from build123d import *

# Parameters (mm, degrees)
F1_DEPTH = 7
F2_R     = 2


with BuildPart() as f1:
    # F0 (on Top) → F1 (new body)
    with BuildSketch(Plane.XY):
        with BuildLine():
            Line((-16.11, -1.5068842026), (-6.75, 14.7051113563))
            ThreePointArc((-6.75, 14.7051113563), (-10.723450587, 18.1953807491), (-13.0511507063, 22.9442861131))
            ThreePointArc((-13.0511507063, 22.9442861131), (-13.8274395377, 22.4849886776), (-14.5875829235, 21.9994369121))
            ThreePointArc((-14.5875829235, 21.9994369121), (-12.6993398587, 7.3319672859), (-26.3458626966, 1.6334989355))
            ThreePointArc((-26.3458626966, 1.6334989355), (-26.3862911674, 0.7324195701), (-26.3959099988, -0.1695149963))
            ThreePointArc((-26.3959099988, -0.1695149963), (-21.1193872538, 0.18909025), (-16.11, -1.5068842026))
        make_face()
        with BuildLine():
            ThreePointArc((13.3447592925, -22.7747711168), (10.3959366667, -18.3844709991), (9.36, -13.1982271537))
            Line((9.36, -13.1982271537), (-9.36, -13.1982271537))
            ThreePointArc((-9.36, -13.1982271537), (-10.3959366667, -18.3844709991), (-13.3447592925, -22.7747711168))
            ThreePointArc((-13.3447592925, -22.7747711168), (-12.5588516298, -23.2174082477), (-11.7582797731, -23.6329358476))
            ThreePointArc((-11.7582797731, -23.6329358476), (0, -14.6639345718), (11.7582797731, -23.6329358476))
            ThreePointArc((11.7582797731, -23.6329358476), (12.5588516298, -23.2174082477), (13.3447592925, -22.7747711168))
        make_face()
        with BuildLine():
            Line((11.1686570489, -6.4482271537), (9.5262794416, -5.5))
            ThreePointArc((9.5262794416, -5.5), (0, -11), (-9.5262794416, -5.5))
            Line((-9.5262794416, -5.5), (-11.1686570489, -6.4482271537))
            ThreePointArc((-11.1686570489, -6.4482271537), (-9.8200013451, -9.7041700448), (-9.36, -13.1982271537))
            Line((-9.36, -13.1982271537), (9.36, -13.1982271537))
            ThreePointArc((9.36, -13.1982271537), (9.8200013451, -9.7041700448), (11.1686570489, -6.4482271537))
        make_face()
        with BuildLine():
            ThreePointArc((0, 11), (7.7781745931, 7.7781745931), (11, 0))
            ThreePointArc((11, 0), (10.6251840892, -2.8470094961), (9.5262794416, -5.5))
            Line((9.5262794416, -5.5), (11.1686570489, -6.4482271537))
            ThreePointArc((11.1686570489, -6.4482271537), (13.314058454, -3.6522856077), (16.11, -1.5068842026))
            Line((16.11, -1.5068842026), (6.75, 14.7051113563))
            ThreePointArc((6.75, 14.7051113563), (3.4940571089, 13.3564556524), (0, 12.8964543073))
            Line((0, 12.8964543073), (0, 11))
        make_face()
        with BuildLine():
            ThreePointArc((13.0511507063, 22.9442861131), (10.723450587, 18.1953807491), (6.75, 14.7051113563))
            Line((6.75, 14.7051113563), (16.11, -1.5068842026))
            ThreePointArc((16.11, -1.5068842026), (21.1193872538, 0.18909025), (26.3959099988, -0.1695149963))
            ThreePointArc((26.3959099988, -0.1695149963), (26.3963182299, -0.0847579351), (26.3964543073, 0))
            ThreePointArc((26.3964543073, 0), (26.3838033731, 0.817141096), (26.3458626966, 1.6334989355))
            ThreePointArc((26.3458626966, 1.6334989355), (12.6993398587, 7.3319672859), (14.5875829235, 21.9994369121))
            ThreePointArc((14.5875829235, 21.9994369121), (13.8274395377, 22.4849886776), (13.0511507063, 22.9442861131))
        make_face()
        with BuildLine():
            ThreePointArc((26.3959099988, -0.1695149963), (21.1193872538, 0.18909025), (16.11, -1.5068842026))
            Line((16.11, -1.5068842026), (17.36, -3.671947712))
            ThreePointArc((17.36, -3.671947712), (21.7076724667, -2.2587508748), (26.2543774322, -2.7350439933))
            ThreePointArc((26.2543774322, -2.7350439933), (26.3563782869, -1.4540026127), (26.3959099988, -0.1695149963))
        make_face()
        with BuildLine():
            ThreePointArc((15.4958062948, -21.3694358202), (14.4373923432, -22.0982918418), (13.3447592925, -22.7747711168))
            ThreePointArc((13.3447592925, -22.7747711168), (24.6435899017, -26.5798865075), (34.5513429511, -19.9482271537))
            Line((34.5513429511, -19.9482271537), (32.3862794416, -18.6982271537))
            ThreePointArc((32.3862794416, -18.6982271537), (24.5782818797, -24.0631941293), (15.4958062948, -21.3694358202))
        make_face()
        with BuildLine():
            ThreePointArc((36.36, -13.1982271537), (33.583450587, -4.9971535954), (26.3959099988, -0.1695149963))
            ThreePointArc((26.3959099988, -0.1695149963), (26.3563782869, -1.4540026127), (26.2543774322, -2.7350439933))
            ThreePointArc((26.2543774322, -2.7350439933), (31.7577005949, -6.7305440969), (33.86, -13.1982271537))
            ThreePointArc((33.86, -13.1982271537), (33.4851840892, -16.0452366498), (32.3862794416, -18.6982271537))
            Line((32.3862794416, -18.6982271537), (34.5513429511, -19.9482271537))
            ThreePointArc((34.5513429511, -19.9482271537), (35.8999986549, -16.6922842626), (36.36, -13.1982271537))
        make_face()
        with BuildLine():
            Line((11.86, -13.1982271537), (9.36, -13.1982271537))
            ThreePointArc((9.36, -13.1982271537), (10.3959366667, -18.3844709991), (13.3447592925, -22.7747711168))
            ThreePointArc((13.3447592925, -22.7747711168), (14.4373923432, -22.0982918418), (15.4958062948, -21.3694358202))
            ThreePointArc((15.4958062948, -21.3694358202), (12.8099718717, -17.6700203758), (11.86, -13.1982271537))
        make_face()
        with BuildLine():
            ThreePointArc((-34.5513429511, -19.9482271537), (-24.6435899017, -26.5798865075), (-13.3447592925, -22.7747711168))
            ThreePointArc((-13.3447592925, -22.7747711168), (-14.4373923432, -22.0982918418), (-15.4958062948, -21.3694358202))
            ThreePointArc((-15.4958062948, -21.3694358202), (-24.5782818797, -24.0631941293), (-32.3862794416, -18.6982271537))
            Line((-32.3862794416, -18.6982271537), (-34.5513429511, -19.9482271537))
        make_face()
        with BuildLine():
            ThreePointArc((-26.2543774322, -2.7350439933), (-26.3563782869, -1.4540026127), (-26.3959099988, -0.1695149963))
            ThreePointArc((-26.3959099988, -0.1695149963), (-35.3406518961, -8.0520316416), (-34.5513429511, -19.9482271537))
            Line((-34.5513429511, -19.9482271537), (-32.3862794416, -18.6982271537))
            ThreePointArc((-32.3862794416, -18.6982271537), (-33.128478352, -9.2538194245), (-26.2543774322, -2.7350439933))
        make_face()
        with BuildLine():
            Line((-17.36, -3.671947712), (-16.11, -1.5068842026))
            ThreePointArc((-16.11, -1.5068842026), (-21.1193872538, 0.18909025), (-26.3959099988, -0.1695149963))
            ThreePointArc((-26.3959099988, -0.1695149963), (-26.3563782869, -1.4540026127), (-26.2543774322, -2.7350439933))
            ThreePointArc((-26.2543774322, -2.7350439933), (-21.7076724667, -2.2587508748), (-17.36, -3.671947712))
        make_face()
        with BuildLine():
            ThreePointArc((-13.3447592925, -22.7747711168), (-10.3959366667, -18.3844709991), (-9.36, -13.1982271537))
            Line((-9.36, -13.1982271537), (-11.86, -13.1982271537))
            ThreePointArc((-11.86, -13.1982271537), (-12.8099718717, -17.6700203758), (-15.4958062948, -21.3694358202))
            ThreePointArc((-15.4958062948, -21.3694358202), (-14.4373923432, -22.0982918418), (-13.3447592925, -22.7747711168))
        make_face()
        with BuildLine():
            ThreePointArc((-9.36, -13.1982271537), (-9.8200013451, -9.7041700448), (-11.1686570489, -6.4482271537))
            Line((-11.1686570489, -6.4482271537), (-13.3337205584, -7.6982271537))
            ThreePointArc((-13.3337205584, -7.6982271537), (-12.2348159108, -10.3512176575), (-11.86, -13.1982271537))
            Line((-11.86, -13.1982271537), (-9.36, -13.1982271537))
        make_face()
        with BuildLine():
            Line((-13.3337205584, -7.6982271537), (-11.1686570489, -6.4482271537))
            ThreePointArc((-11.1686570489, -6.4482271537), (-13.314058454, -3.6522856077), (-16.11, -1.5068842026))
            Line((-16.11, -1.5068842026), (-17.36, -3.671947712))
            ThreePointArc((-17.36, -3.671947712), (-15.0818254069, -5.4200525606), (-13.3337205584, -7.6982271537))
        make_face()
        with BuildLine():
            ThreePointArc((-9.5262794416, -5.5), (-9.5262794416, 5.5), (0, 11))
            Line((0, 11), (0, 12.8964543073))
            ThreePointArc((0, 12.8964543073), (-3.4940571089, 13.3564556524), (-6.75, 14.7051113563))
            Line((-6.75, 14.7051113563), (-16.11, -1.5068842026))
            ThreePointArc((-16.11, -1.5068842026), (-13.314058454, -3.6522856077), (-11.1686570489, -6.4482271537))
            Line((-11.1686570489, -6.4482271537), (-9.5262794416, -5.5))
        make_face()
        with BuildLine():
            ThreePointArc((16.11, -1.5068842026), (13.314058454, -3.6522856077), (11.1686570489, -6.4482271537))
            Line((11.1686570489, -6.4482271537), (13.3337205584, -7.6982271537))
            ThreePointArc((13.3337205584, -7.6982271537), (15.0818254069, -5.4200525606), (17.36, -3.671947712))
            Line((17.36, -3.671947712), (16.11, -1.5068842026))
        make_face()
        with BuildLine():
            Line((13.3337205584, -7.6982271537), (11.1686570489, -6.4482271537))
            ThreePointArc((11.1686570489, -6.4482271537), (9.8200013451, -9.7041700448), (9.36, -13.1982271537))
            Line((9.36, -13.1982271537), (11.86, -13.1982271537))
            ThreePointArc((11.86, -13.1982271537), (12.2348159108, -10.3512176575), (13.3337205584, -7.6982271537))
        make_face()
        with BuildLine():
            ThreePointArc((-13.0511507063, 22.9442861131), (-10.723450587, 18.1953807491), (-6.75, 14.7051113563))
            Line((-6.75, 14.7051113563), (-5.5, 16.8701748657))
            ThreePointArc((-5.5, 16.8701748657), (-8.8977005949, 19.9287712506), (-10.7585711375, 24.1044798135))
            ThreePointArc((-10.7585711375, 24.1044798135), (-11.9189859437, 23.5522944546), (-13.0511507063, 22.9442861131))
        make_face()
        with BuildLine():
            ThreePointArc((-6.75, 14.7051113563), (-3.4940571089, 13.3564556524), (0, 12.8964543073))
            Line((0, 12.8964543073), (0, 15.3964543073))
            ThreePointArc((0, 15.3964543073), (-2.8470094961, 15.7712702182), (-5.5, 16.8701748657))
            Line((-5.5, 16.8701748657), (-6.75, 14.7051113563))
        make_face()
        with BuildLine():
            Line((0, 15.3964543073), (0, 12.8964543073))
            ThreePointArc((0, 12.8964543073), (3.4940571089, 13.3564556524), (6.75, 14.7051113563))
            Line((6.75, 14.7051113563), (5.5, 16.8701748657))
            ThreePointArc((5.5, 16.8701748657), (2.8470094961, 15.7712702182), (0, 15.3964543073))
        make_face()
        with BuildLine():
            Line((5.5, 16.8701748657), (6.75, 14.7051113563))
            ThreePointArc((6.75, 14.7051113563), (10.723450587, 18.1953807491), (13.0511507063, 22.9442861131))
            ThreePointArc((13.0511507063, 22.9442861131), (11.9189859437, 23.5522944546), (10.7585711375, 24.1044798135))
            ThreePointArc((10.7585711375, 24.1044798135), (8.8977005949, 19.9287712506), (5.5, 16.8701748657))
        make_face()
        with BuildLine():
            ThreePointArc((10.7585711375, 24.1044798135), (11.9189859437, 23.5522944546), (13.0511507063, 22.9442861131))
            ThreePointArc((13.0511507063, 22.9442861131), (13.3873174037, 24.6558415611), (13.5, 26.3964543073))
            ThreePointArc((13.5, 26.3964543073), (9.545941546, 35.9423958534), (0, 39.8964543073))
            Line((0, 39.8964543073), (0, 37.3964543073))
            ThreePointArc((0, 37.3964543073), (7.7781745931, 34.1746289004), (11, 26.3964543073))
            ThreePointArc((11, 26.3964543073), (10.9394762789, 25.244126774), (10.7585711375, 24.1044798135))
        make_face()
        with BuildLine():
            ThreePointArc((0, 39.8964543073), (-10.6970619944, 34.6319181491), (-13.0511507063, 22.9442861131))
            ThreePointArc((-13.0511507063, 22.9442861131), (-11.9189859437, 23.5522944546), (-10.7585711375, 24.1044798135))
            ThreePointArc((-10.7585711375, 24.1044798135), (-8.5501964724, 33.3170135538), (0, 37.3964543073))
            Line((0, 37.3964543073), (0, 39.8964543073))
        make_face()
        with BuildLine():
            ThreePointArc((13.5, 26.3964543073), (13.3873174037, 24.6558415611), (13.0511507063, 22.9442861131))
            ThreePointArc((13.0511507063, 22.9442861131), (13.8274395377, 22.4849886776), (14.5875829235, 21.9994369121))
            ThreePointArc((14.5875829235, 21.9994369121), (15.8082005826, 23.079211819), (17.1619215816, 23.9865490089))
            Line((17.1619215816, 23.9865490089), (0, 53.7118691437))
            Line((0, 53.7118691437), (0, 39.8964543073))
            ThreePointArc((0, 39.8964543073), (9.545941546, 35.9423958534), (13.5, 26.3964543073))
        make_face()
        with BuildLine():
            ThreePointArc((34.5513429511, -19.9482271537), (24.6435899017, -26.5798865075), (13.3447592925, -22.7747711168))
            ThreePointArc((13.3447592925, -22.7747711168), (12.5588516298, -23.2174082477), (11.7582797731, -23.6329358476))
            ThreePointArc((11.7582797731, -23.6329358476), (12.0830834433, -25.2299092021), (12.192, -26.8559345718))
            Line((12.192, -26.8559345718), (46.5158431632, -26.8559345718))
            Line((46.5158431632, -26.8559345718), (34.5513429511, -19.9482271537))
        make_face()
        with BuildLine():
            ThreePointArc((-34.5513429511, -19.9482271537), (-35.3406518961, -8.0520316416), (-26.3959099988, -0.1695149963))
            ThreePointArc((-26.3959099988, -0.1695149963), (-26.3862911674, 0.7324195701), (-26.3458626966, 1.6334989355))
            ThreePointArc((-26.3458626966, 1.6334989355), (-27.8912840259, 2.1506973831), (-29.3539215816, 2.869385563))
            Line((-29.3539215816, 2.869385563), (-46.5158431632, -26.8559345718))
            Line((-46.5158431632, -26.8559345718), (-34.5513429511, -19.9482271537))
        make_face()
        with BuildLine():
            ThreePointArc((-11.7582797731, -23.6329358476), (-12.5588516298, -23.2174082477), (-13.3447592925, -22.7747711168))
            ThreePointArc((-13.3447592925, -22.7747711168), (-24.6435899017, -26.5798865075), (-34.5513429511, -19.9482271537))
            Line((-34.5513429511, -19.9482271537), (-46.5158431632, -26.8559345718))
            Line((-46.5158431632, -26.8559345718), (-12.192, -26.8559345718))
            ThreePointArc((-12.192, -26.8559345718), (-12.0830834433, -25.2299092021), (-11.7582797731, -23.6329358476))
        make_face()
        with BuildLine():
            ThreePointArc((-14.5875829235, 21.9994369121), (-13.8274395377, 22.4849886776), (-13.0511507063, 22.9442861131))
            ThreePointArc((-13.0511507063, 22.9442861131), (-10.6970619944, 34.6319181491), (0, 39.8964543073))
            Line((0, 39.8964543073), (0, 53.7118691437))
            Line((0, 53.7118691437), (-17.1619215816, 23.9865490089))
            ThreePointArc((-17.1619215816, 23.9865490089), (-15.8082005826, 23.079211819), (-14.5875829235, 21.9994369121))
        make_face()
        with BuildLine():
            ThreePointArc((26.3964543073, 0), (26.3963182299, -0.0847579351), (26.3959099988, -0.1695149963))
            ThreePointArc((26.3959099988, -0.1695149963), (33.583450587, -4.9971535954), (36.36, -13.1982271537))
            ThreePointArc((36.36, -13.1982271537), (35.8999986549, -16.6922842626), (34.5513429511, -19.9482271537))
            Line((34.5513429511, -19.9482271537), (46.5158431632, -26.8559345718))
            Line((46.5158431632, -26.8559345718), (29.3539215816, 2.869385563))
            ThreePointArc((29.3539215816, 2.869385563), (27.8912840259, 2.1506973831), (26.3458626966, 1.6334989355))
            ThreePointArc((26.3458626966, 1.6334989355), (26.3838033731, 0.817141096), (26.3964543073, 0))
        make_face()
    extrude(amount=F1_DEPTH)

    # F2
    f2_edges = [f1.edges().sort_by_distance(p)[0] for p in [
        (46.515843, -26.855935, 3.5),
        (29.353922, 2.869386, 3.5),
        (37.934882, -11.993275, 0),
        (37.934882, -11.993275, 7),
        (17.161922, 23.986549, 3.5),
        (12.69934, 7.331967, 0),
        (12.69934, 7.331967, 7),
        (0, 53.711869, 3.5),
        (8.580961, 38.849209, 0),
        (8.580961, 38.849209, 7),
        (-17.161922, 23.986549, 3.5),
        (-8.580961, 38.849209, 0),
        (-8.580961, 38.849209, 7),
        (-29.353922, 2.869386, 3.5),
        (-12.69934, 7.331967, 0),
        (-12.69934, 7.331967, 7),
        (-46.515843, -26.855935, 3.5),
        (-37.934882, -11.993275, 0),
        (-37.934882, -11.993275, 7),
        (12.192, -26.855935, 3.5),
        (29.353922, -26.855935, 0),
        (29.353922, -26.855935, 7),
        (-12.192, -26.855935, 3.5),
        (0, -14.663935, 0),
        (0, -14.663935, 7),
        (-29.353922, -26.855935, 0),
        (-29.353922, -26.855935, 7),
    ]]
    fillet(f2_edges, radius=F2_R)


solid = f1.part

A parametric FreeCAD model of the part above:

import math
import FreeCAD as App
import Part
import Sketcher
Q = App.Units.Quantity


def edges_at(feature, points):
    """Names of the edges that pass closest to the given points."""
    edges = feature.Shape.Edges
    near = lambda p: min(range(len(edges)), key=lambda i: edges[i].distToShape(Part.Vertex(*p))[0])
    return sorted({f"Edge{near(p) + 1}" for p in points})

doc = App.newDocument("Part")
body = doc.addObject("PartDesign::Body", "Body")

sketch1 = doc.addObject("Sketcher::SketchObject", "Sketch")
body.addObject(sketch1)
sketch1.AttachmentSupport = (doc.XY_Plane, [""])
sketch1.MapMode = "FlatFace"
sketch1.addGeometry(Part.ArcOfCircle(Part.Circle(App.Vector(-23.257922, 13.427967, 0), App.Vector(0, 0, 1), 12.192), math.radians(-104.671455), math.radians(44.671455)), False)
sketch1.addGeometry(Part.ArcOfCircle(Part.Circle(App.Vector(-23.257922, 13.427967, 0), App.Vector(0, 0, 1), 12.192), math.radians(-120), math.radians(-104.671455)), False)
sketch1.addGeometry(Part.LineSegment(App.Vector(-29.353922, 2.869386, 0), App.Vector(-46.515843, -26.855935, 0)), False)
sketch1.addGeometry(Part.LineSegment(App.Vector(-46.515843, -26.855935, 0), App.Vector(-12.192, -26.855935, 0)), False)
sketch1.addGeometry(Part.ArcOfCircle(Part.Circle(App.Vector(0, -26.855935, 0), App.Vector(0, 0, 1), 12.192), math.radians(164.671455), math.radians(180)), False)
sketch1.addGeometry(Part.ArcOfCircle(Part.Circle(App.Vector(0, -26.855935, 0), App.Vector(0, 0, 1), 12.192), math.radians(15.328545), math.radians(164.671455)), False)
sketch1.addGeometry(Part.ArcOfCircle(Part.Circle(App.Vector(0, -26.855935, 0), App.Vector(0, 0, 1), 12.192), math.radians(0), math.radians(15.328545)), False)
sketch1.addGeometry(Part.LineSegment(App.Vector(12.192, -26.855935, 0), App.Vector(46.515843, -26.855935, 0)), False)
sketch1.addGeometry(Part.LineSegment(App.Vector(46.515843, -26.855935, 0), App.Vector(29.353922, 2.869386, 0)), False)
sketch1.addGeometry(Part.ArcOfCircle(Part.Circle(App.Vector(23.257922, 13.427967, 0), App.Vector(0, 0, 1), 12.192), math.radians(-75.328545), math.radians(-60)), False)
sketch1.addGeometry(Part.ArcOfCircle(Part.Circle(App.Vector(23.257922, 13.427967, 0), App.Vector(0, 0, 1), 12.192), math.radians(135.328545), math.radians(284.671455)), False)
sketch1.addGeometry(Part.ArcOfCircle(Part.Circle(App.Vector(23.257922, 13.427967, 0), App.Vector(0, 0, 1), 12.192), math.radians(120), math.radians(135.328545)), False)
sketch1.addGeometry(Part.LineSegment(App.Vector(17.161922, 23.986549, 0), App.Vector(0, 53.711869, 0)), False)
sketch1.addGeometry(Part.LineSegment(App.Vector(0, 53.711869, 0), App.Vector(-17.161922, 23.986549, 0)), False)
sketch1.addGeometry(Part.ArcOfCircle(Part.Circle(App.Vector(-23.257922, 13.427967, 0), App.Vector(0, 0, 1), 12.192), math.radians(44.671455), math.radians(60)), False)
sketch1.addGeometry(Part.ArcOfCircle(Part.Circle(App.Vector(0, 26.396454, 0), App.Vector(0, 0, 1), 11), math.radians(0), math.radians(90)), False)
sketch1.addGeometry(Part.ArcOfCircle(Part.Circle(App.Vector(0, 26.396454, 0), App.Vector(0, 0, 1), 11), math.radians(-12.026339), math.radians(0)), False)
sketch1.addGeometry(Part.ArcOfCircle(Part.Circle(App.Vector(0, 26.396454, 0), App.Vector(0, 0, 1), 11), math.radians(-60), math.radians(-12.026339)), False)
sketch1.addGeometry(Part.ArcOfCircle(Part.Circle(App.Vector(0, 26.396454, 0), App.Vector(0, 0, 1), 11), math.radians(-90), math.radians(-60)), False)
sketch1.addGeometry(Part.ArcOfCircle(Part.Circle(App.Vector(0, 26.396454, 0), App.Vector(0, 0, 1), 11), math.radians(-120), math.radians(-90)), False)
sketch1.addGeometry(Part.ArcOfCircle(Part.Circle(App.Vector(0, 26.396454, 0), App.Vector(0, 0, 1), 11), math.radians(-167.973661), math.radians(-120)), False)
sketch1.addGeometry(Part.ArcOfCircle(Part.Circle(App.Vector(0, 26.396454, 0), App.Vector(0, 0, 1), 11), math.radians(90), math.radians(192.026339)), False)
sketch1.addGeometry(Part.ArcOfCircle(Part.Circle(App.Vector(0, 0, 0), App.Vector(0, 0, 1), 11), math.radians(0), math.radians(90)), False)
sketch1.addGeometry(Part.ArcOfCircle(Part.Circle(App.Vector(0, 0, 0), App.Vector(0, 0, 1), 11), math.radians(-30), math.radians(0)), False)
sketch1.addGeometry(Part.ArcOfCircle(Part.Circle(App.Vector(0, 0, 0), App.Vector(0, 0, 1), 11), math.radians(-150), math.radians(-30)), False)
sketch1.addGeometry(Part.ArcOfCircle(Part.Circle(App.Vector(0, 0, 0), App.Vector(0, 0, 1), 11), math.radians(90), math.radians(210)), False)
sketch1.addGeometry(Part.ArcOfCircle(Part.Circle(App.Vector(-22.86, -13.198227, 0), App.Vector(0, 0, 1), 11), math.radians(0), math.radians(30)), False)
sketch1.addGeometry(Part.ArcOfCircle(Part.Circle(App.Vector(-22.86, -13.198227, 0), App.Vector(0, 0, 1), 11), math.radians(-47.973661), math.radians(0)), False)
sketch1.addGeometry(Part.ArcOfCircle(Part.Circle(App.Vector(-22.86, -13.198227, 0), App.Vector(0, 0, 1), 11), math.radians(-150), math.radians(-47.973661)), False)
sketch1.addGeometry(Part.ArcOfCircle(Part.Circle(App.Vector(-22.86, -13.198227, 0), App.Vector(0, 0, 1), 11), math.radians(107.973661), math.radians(210)), False)
sketch1.addGeometry(Part.ArcOfCircle(Part.Circle(App.Vector(-22.86, -13.198227, 0), App.Vector(0, 0, 1), 11), math.radians(60), math.radians(107.973661)), False)
sketch1.addGeometry(Part.ArcOfCircle(Part.Circle(App.Vector(-22.86, -13.198227, 0), App.Vector(0, 0, 1), 11), math.radians(30), math.radians(60)), False)
sketch1.addGeometry(Part.ArcOfCircle(Part.Circle(App.Vector(22.86, -13.198227, 0), App.Vector(0, 0, 1), 11), math.radians(-30), math.radians(0)), False)
sketch1.addGeometry(Part.ArcOfCircle(Part.Circle(App.Vector(22.86, -13.198227, 0), App.Vector(0, 0, 1), 11), math.radians(-132.026339), math.radians(-30)), False)
sketch1.addGeometry(Part.ArcOfCircle(Part.Circle(App.Vector(22.86, -13.198227, 0), App.Vector(0, 0, 1), 11), math.radians(180), math.radians(227.973661)), False)
sketch1.addGeometry(Part.ArcOfCircle(Part.Circle(App.Vector(22.86, -13.198227, 0), App.Vector(0, 0, 1), 11), math.radians(150), math.radians(180)), False)
sketch1.addGeometry(Part.ArcOfCircle(Part.Circle(App.Vector(22.86, -13.198227, 0), App.Vector(0, 0, 1), 11), math.radians(120), math.radians(150)), False)
sketch1.addGeometry(Part.ArcOfCircle(Part.Circle(App.Vector(22.86, -13.198227, 0), App.Vector(0, 0, 1), 11), math.radians(72.026339), math.radians(120)), False)
sketch1.addGeometry(Part.ArcOfCircle(Part.Circle(App.Vector(22.86, -13.198227, 0), App.Vector(0, 0, 1), 11), math.radians(0), math.radians(72.026339)), False)
sketch1.addConstraint(Sketcher.Constraint("Tangent", 0, 1, 1, 2))
sketch1.addConstraint(Sketcher.Constraint("Coincident", 1, 1, 2, 1))
sketch1.addConstraint(Sketcher.Constraint("Coincident", 2, 2, 3, 1))
sketch1.addConstraint(Sketcher.Constraint("Coincident", 3, 2, 4, 2))
sketch1.addConstraint(Sketcher.Constraint("Tangent", 4, 1, 5, 2))
sketch1.addConstraint(Sketcher.Constraint("Tangent", 5, 1, 6, 2))
sketch1.addConstraint(Sketcher.Constraint("Coincident", 6, 1, 7, 1))
sketch1.addConstraint(Sketcher.Constraint("Coincident", 7, 2, 8, 1))
sketch1.addConstraint(Sketcher.Constraint("Coincident", 8, 2, 9, 2))
sketch1.addConstraint(Sketcher.Constraint("Tangent", 9, 1, 10, 2))
sketch1.addConstraint(Sketcher.Constraint("Tangent", 10, 1, 11, 2))
sketch1.addConstraint(Sketcher.Constraint("Coincident", 11, 1, 12, 1))
sketch1.addConstraint(Sketcher.Constraint("Coincident", 12, 2, 13, 1))
sketch1.addConstraint(Sketcher.Constraint("Coincident", 13, 2, 14, 2))
sketch1.addConstraint(Sketcher.Constraint("Tangent", 14, 1, 0, 2))
sketch1.addConstraint(Sketcher.Constraint("Tangent", 15, 1, 16, 2))
sketch1.addConstraint(Sketcher.Constraint("Tangent", 16, 1, 17, 2))
sketch1.addConstraint(Sketcher.Constraint("Tangent", 17, 1, 18, 2))
sketch1.addConstraint(Sketcher.Constraint("Tangent", 18, 1, 19, 2))
sketch1.addConstraint(Sketcher.Constraint("Tangent", 19, 1, 20, 2))
sketch1.addConstraint(Sketcher.Constraint("Tangent", 20, 1, 21, 2))
sketch1.addConstraint(Sketcher.Constraint("Tangent", 21, 1, 15, 2))
sketch1.addConstraint(Sketcher.Constraint("Tangent", 22, 1, 23, 2))
sketch1.addConstraint(Sketcher.Constraint("Tangent", 23, 1, 24, 2))
sketch1.addConstraint(Sketcher.Constraint("Tangent", 24, 1, 25, 2))
sketch1.addConstraint(Sketcher.Constraint("Tangent", 25, 1, 22, 2))
sketch1.addConstraint(Sketcher.Constraint("Tangent", 26, 1, 27, 2))
sketch1.addConstraint(Sketcher.Constraint("Tangent", 27, 1, 28, 2))
sketch1.addConstraint(Sketcher.Constraint("Tangent", 28, 1, 29, 2))
sketch1.addConstraint(Sketcher.Constraint("Tangent", 29, 1, 30, 2))
sketch1.addConstraint(Sketcher.Constraint("Tangent", 30, 1, 31, 2))
sketch1.addConstraint(Sketcher.Constraint("Tangent", 31, 1, 26, 2))
sketch1.addConstraint(Sketcher.Constraint("Tangent", 32, 1, 33, 2))
sketch1.addConstraint(Sketcher.Constraint("Tangent", 33, 1, 34, 2))
sketch1.addConstraint(Sketcher.Constraint("Tangent", 34, 1, 35, 2))
sketch1.addConstraint(Sketcher.Constraint("Tangent", 35, 1, 36, 2))
sketch1.addConstraint(Sketcher.Constraint("Tangent", 36, 1, 37, 2))
sketch1.addConstraint(Sketcher.Constraint("Tangent", 37, 1, 38, 2))
sketch1.addConstraint(Sketcher.Constraint("Tangent", 38, 1, 32, 2))
sketch1.addConstraint(Sketcher.Constraint("Horizontal", 3))
sketch1.addConstraint(Sketcher.Constraint("Horizontal", 7))
sketch1.addConstraint(Sketcher.Constraint("Coincident", 22, 3, -1, 1))
sketch1.addConstraint(Sketcher.Constraint("Coincident", 6, 3, 4, 3))
sketch1.addConstraint(Sketcher.Constraint("Coincident", 11, 3, 9, 3))
sketch1.addConstraint(Sketcher.Constraint("Coincident", 17, 3, 15, 3))
sketch1.addConstraint(Sketcher.Constraint("Coincident", 19, 3, 15, 3))
sketch1.addConstraint(Sketcher.Constraint("Coincident", 28, 3, 26, 3))
sketch1.addConstraint(Sketcher.Constraint("Coincident", 34, 3, 32, 3))
sketch1.addConstraint(Sketcher.Constraint("Coincident", 36, 3, 32, 3))
sketch1.addConstraint(Sketcher.Constraint("Equal", 0, 1))
sketch1.addConstraint(Sketcher.Constraint("Equal", 1, 4))
sketch1.addConstraint(Sketcher.Constraint("Equal", 6, 9))
sketch1.addConstraint(Sketcher.Constraint("Equal", 11, 14))
sketch1.addConstraint(Sketcher.Constraint("Equal", 21, 22))
sketch1.addConstraint(Sketcher.Constraint("Equal", 22, 23))
sketch1.addConstraint(Sketcher.Constraint("Equal", 25, 26))
sketch1.addConstraint(Sketcher.Constraint("Equal", 28, 29))
sketch1.addConstraint(Sketcher.Constraint("Equal", 31, 32))
sketch1.addConstraint(Sketcher.Constraint("Symmetric", 0, 3, 9, 3, -2))
sketch1.addConstraint(Sketcher.Constraint("Symmetric", 26, 3, 32, 3, -2))
sketch1.addConstraint(Sketcher.Constraint("Symmetric", 4, 1, 5, 1, -2))
sketch1.addConstraint(Sketcher.Constraint("Symmetric", 2, 2, 7, 2, -2))
sketch1.addConstraint(Sketcher.Constraint("Symmetric", 17, 1, 19, 1, -2))
sketch1.addConstraint(Sketcher.Constraint("PointOnObject", 12, 2, -2))
sketch1.addConstraint(Sketcher.Constraint("PointOnObject", 18, 1, -2))
sketch1.addConstraint(Sketcher.Constraint("PointOnObject", 21, 1, -2))
sketch1.addConstraint(Sketcher.Constraint("PointOnObject", 22, 1, -1))
sketch1.addConstraint(Sketcher.Constraint("PointOnObject", 25, 1, -2))
sketch1.addConstraint(Sketcher.Constraint("Parallel", 8, 12))
sketch1.addConstraint(Sketcher.Constraint("Parallel", 2, 13))
sketch1.addConstraint(Sketcher.Constraint("Horizontal", 6, 3, 2, 2))
sketch1.addConstraint(Sketcher.Constraint("Horizontal", 1, 1, 8, 2))
sketch1.addConstraint(Sketcher.Constraint("Horizontal", 0, 1, 9, 1))
sketch1.addConstraint(Sketcher.Constraint("Horizontal", 10, 1, 14, 1))
sketch1.addConstraint(Sketcher.Constraint("Horizontal", 21, 3, 15, 1))
sketch1.addConstraint(Sketcher.Constraint("Horizontal", 16, 1, 20, 1))
sketch1.addConstraint(Sketcher.Constraint("Horizontal", 23, 1, 24, 1))
sketch1.addConstraint(Sketcher.Constraint("Horizontal", 38, 3, 26, 1))
sketch1.addConstraint(Sketcher.Constraint("Horizontal", 28, 1, 32, 1))
sketch1.addConstraint(Sketcher.Constraint("Horizontal", 27, 1, 33, 1))
sketch1.addConstraint(Sketcher.Constraint("Horizontal", 26, 1, 34, 1))
sketch1.addConstraint(Sketcher.Constraint("Horizontal", 31, 1, 35, 1))
sketch1.addConstraint(Sketcher.Constraint("Horizontal", 30, 1, 36, 1))
sketch1.addConstraint(Sketcher.Constraint("Horizontal", 29, 1, 37, 1))
sketch1.addConstraint(Sketcher.Constraint("Horizontal", 34, 1, 38, 1))
sketch1.addConstraint(Sketcher.Constraint("Equal", 8, 12))
sketch1.addConstraint(Sketcher.Constraint("Radius", 15, 11.0))
sketch1.addConstraint(Sketcher.Constraint("Angle", 2, Q("-120 deg")))
sketch1.addConstraint(Sketcher.Constraint("Radius", 0, 12.192))
sketch1.addConstraint(Sketcher.Constraint("DistanceX", -1, 1, 17, 1, 5.5))
sketch1.addConstraint(Sketcher.Constraint("DistanceY", 23, 1, -1, 1, 5.5))
sketch1.addConstraint(Sketcher.Constraint("DistanceX", 26, 3, -1, 1, 22.86))
sketch1.addConstraint(Sketcher.Constraint("DistanceX", 30, 1, -1, 1, 17.36))
sketch1.addConstraint(Sketcher.Constraint("DistanceY", -1, 1, 0, 1, 1.633499))
sketch1.addConstraint(Sketcher.Constraint("DistanceX", 3, 1, 3, 2, 34.323843))
sketch1.addConstraint(Sketcher.Constraint("DistanceX", 0, 3, -1, 1, 23.257922))
sketch1.addConstraint(Sketcher.Constraint("DistanceX", 1, 1, -1, 1, 29.353922))
sketch1.addConstraint(Sketcher.Constraint("DistanceX", 4, 1, -1, 1, 11.75828))
sketch1.addConstraint(Sketcher.Constraint("DistanceY", -1, 1, 11, 1, 23.986549))
sketch1.addConstraint(Sketcher.Constraint("DistanceX", -1, 1, 16, 1, 10.758571))
sketch1.addConstraint(Sketcher.Constraint("DistanceY", -1, 1, 16, 1, 24.10448))
sketch1.addConstraint(Sketcher.Constraint("DistanceX", 28, 1, -1, 1, 32.386279))
sketch1.addConstraint(Sketcher.Constraint("DistanceX", 31, 1, -1, 1, 13.333721))
sketch1.addConstraint(Sketcher.Constraint("DistanceY", 26, 3, -1, 1, 13.198227))
sketch1.addConstraint(Sketcher.Constraint("DistanceX", -1, 1, 10, 1, 14.587583))
sketch1.addConstraint(Sketcher.Constraint("DistanceX", 27, 1, -1, 1, 15.495806))
sketch1.addConstraint(Sketcher.Constraint("DistanceX", 29, 1, -1, 1, 26.254377))
pad1 = doc.addObject("PartDesign::Pad", "Pad")
body.addObject(pad1)
pad1.Profile = sketch1
pad1.Length = 7
doc.recompute()

fillet = doc.addObject("PartDesign::Fillet", "Fillet")
body.addObject(fillet)
fillet.Base = (pad1, edges_at(pad1, [
    (46.516, -26.856, 3.5),
    (29.354, 2.869, 3.5),
    (37.935, -11.993, 0),
    (37.935, -11.993, 7),
    (17.162, 23.987, 3.5),
    (12.699, 7.332, 0),
    (12.699, 7.332, 7),
    (0, 53.712, 3.5),
    (8.581, 38.849, 0),
    (8.581, 38.849, 7),
    (-17.162, 23.987, 3.5),
    (-8.581, 38.849, 0),
    (-8.581, 38.849, 7),
    (-29.354, 2.869, 3.5),
    (-12.699, 7.332, 0),
    (-12.699, 7.332, 7),
    (-46.516, -26.856, 3.5),
    (-37.935, -11.993, 0),
    (-37.935, -11.993, 7),
    (12.192, -26.856, 3.5),
    (29.354, -26.856, 0),
    (29.354, -26.856, 7),
    (-12.192, -26.856, 3.5),
    (0, -14.664, 0),
    (0, -14.664, 7),
    (-29.354, -26.856, 0),
    (-29.354, -26.856, 7),
]))
fillet.Radius = 2

doc.recompute()
